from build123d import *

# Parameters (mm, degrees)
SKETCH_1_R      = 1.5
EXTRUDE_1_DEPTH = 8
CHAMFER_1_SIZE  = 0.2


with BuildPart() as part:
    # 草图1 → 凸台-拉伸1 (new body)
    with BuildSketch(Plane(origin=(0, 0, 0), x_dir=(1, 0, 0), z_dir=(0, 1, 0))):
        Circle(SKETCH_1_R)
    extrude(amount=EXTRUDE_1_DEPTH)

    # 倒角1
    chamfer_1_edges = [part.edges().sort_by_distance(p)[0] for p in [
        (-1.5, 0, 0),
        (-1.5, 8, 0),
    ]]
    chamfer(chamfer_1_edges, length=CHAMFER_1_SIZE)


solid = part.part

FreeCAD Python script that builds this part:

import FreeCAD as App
import Part
import Sketcher

V = App.Vector


def edges_at(feature, points):
    """Names of the edges that pass closest to the given points."""
    edges = feature.Shape.Edges
    near = lambda p: min(range(len(edges)), key=lambda i: edges[i].distToShape(Part.Vertex(*p))[0])
    return sorted({f"Edge{near(p) + 1}" for p in points})

doc = App.newDocument("Part")
body = doc.addObject("PartDesign::Body", "Body")

sketch1 = doc.addObject("Sketcher::SketchObject", "Sketch")
body.addObject(sketch1)
sketch1.AttachmentSupport = (doc.XZ_Plane, [""])
sketch1.MapMode = "FlatFace"
sketch1.addGeometry(Part.Circle(V(0, 0, 0), V(0, 0, 1), 1.5), False)
sketch1.addConstraint(Sketcher.Constraint("Coincident", 0, 3, -1, 1))
sketch1.addConstraint(Sketcher.Constraint("Diameter", 0, 3.0))
pad1 = doc.addObject("PartDesign::Pad", "Pad")
body.addObject(pad1)
pad1.Profile = sketch1
pad1.Length = 8
pad1.Reversed = True
doc.recompute()

chamfer = doc.addObject("PartDesign::Chamfer", "Chamfer")
body.addObject(chamfer)
chamfer.Base = (pad1, edges_at(pad1, [(-1.5, 0, 0), (-1.5, 8, 0)]))
chamfer.Size = 0.2

doc.recompute()
